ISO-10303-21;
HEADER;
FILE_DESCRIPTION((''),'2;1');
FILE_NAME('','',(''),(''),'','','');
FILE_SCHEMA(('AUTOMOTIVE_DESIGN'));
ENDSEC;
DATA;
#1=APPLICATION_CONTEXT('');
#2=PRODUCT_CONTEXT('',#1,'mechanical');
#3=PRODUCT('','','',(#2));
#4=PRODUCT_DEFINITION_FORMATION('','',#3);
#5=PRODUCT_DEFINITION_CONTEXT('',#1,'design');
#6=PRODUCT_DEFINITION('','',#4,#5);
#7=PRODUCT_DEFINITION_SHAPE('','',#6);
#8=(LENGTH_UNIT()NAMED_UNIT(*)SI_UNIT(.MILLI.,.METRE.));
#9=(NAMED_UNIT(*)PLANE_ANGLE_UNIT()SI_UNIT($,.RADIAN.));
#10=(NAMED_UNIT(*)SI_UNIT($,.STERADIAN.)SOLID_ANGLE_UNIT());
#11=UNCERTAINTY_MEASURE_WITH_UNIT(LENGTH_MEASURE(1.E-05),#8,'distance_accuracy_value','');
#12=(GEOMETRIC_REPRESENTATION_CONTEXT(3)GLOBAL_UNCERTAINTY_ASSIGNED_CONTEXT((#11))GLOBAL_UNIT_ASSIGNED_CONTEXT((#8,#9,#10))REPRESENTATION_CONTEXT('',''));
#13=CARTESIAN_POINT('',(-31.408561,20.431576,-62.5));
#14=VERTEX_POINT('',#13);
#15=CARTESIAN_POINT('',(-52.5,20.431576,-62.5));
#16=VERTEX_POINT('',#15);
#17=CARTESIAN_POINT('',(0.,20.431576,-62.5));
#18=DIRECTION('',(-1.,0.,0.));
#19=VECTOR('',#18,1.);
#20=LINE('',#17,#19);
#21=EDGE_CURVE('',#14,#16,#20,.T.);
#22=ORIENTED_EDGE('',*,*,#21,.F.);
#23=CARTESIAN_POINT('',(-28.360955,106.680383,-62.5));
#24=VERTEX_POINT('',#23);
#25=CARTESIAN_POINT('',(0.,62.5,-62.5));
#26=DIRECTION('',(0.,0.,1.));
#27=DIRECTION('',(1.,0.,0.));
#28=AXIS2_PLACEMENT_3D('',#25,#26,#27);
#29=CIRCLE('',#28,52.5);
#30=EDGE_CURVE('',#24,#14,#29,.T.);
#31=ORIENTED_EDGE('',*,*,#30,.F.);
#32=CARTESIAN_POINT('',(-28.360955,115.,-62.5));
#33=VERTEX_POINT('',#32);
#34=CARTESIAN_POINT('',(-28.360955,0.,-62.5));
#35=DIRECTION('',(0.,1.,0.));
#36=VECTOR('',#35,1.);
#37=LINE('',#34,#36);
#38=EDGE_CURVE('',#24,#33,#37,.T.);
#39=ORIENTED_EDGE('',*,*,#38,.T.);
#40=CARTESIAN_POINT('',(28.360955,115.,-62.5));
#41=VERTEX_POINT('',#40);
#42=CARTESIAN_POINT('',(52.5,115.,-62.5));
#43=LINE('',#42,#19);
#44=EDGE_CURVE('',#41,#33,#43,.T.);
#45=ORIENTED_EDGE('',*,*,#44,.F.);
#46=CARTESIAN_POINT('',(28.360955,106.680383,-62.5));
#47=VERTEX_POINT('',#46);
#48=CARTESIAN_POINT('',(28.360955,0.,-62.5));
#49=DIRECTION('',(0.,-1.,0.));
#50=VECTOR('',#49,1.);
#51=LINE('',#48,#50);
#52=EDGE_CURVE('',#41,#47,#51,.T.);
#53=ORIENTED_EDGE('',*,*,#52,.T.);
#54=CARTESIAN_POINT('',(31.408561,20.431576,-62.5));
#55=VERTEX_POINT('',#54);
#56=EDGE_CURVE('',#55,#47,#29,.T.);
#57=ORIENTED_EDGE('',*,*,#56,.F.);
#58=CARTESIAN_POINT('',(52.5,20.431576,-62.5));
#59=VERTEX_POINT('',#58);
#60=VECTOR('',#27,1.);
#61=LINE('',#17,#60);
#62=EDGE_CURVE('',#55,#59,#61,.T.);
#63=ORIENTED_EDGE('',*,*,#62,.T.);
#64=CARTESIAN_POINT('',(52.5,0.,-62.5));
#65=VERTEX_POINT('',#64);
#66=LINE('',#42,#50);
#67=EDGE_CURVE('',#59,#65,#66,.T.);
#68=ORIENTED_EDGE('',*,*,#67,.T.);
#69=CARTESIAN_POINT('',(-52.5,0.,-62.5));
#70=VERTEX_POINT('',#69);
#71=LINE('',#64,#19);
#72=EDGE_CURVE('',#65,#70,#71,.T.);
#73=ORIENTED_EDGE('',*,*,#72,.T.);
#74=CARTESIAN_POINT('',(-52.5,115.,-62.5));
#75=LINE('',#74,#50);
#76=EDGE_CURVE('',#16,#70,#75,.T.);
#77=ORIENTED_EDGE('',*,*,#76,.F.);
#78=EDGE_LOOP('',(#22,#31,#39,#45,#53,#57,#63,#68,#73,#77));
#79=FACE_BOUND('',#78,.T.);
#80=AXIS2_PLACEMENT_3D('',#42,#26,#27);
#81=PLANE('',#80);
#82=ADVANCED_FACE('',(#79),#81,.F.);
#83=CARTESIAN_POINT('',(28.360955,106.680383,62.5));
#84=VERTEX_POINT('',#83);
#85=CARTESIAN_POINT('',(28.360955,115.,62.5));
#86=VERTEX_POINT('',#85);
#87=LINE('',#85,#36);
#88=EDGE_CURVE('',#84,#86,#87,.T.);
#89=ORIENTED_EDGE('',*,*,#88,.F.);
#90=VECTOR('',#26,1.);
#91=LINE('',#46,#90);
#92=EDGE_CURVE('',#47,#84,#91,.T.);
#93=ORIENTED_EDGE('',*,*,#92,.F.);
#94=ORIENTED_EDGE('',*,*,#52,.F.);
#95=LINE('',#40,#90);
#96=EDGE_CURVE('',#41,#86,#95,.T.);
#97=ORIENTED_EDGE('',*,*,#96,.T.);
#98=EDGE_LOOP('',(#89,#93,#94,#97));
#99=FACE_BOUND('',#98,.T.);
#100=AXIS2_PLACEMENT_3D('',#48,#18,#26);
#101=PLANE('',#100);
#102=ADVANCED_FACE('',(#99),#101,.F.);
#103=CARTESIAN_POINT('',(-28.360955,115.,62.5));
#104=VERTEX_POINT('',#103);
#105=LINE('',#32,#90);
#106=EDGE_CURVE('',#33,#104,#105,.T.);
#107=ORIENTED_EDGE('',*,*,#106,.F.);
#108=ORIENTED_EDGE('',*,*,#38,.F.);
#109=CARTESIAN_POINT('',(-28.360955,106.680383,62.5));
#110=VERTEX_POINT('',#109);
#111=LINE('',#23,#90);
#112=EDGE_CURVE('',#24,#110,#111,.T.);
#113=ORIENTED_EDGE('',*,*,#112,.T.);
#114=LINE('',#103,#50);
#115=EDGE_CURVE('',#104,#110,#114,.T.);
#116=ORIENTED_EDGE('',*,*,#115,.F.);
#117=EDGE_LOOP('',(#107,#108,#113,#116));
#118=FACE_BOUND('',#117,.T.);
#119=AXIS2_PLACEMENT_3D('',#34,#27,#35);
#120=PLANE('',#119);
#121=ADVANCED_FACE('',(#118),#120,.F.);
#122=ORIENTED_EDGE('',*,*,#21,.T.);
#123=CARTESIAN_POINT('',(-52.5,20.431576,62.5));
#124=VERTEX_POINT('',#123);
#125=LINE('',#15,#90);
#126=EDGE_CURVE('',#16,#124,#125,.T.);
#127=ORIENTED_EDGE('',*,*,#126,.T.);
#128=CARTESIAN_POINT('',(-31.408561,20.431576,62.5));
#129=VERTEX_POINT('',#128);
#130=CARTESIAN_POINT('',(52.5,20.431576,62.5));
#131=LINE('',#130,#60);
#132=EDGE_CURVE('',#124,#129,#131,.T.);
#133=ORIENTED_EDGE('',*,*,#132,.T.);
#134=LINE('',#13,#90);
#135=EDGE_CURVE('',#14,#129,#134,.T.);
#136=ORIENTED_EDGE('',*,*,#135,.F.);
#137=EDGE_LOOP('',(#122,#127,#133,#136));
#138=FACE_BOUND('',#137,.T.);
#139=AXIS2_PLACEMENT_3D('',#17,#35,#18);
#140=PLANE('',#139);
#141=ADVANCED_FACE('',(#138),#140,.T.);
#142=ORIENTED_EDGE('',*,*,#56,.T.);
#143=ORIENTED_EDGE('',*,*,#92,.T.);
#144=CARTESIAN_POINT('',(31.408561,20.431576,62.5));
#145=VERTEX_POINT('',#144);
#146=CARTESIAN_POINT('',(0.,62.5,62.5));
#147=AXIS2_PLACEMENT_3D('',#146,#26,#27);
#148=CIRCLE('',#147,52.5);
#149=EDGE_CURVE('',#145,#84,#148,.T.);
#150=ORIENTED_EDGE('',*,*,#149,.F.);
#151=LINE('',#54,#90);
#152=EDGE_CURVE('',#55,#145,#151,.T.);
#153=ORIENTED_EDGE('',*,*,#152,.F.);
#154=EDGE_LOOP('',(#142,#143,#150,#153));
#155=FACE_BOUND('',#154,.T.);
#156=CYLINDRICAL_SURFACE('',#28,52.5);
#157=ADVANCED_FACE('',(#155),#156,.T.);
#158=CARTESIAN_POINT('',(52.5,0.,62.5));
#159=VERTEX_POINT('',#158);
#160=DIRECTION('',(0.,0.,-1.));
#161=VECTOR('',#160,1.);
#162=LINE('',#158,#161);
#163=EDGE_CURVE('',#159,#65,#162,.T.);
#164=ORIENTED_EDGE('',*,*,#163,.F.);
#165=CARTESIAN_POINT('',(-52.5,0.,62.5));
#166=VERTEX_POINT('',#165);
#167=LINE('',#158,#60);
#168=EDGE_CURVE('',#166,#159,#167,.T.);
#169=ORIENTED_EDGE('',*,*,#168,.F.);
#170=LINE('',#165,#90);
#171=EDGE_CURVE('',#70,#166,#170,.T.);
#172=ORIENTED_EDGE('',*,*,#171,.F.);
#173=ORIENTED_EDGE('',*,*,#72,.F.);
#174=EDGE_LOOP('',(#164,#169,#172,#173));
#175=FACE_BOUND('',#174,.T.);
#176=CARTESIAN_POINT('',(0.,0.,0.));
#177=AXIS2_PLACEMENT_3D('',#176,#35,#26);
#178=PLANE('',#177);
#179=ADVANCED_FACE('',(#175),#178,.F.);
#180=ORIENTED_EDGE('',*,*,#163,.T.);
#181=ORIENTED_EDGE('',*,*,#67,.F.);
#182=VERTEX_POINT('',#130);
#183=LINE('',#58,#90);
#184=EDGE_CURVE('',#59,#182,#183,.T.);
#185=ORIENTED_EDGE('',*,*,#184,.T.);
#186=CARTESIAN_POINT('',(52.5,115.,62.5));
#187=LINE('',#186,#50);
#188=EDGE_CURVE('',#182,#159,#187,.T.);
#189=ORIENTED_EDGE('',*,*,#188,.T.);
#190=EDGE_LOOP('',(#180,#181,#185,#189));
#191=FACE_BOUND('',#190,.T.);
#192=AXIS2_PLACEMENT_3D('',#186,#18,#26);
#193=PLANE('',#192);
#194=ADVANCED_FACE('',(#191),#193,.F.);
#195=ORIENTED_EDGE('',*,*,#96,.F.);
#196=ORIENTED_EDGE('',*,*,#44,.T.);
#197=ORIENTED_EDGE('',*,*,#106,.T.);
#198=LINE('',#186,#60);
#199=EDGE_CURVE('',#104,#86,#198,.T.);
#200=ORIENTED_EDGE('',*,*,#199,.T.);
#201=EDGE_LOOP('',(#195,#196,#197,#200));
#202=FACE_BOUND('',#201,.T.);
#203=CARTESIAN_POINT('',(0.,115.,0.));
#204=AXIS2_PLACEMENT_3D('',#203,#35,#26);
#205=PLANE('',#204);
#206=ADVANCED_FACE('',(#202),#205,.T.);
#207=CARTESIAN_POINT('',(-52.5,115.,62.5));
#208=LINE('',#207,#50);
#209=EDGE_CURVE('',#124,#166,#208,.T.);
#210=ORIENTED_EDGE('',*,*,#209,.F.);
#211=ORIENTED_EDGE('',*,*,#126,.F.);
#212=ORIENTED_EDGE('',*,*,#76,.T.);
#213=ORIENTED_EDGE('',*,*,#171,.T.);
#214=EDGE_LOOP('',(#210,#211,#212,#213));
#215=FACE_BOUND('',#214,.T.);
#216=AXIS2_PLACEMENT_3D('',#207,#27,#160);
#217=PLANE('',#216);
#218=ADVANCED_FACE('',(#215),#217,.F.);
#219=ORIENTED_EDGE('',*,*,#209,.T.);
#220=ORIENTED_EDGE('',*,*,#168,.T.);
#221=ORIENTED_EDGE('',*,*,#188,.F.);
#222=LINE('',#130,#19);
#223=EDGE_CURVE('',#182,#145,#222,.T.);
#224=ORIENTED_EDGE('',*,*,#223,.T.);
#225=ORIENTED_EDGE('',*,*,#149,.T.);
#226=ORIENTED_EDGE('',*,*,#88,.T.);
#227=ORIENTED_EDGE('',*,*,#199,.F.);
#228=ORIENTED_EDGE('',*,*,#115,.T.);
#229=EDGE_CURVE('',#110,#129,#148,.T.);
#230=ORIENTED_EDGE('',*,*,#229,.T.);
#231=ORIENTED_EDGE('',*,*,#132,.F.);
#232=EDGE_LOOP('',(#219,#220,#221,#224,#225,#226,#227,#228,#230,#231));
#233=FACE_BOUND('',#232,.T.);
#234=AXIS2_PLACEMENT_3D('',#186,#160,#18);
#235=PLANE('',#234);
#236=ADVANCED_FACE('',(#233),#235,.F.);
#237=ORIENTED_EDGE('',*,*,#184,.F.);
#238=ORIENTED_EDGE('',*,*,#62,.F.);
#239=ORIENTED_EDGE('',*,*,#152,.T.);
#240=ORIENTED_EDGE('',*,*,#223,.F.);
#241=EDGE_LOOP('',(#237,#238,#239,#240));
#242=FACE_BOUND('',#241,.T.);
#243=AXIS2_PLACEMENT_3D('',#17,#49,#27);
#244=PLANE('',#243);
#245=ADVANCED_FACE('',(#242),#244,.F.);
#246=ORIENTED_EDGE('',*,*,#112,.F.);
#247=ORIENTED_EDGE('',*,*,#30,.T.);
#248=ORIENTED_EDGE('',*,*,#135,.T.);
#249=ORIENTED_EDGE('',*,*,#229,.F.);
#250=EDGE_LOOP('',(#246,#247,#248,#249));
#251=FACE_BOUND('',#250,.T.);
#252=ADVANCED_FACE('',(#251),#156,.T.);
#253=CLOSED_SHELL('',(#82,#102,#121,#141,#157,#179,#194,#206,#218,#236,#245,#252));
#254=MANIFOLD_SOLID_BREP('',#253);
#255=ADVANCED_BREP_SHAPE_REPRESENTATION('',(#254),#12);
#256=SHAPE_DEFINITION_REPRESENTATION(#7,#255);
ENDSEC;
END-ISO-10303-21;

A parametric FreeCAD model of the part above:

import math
import FreeCAD as App
import Part
import Sketcher
Q = App.Units.Quantity


def add_polygon(sketch, points):
    """Adds a closed chain of lines whose ends are joined by coincident constraints."""
    first, n = sketch.GeometryCount, len(points)
    for a, b in zip(points, points[1:] + points[:1]):
        sketch.addGeometry(Part.LineSegment(App.Vector(*a, 0), App.Vector(*b, 0)), False)
    for i in range(n):
        sketch.addConstraint(Sketcher.Constraint("Coincident", first + i, 2, first + (i + 1) % n, 1))

doc = App.newDocument("Part")
params = doc.addObject("Spreadsheet::Sheet", "Params")
for row, (alias, value) in enumerate([
    ("sketch1_width", "105 mm"),
    ("sketch1_height", "125 mm"),
    ("pad1_length", "115 mm"),
    ("sketch2_radius", "52.5 mm"),
    ("sketch2_height", "52.5 mm"),
], start=1):
    params.set(f"A{row}", alias)
    params.set(f"B{row}", "=" + value)
    params.setAlias(f"B{row}", alias)

body = doc.addObject("PartDesign::Body", "Body")

sketch1 = body.newObject("Sketcher::SketchObject", "Sketch")
sketch1.AttachmentSupport = (doc.getObject("XZ_Plane"), [""])
sketch1.MapMode = "FlatFace"
add_polygon(sketch1, [(-52, -62), (-52, 62), (52, 62), (52, -62)])
sketch1.addConstraint([
    Sketcher.Constraint("Vertical", 0),
    Sketcher.Constraint("Horizontal", 1),
    Sketcher.Constraint("Vertical", 2),
    Sketcher.Constraint("Horizontal", 3),
    Sketcher.Constraint("Symmetric", 0, 2, 2, 2, -1, 1),
    Sketcher.Constraint("DistanceX", 1, 1, 1, 2, Q("105 mm")),
    Sketcher.Constraint("DistanceY", 0, 1, 0, 2, Q("125 mm")),
])
sketch1.setExpression("Constraints[9]", "Params.sketch1_width")
sketch1.setExpression("Constraints[10]", "Params.sketch1_height")
pad1 = body.newObject("PartDesign::Pad", "Pad")
pad1.Profile = sketch1
pad1.setExpression("Length", "Params.pad1_length")
pad1.Reversed = True

sketch2 = body.newObject("Sketcher::SketchObject", "Sketch001")
sketch2.AttachmentSupport = (doc.getObject("XY_Plane"), [""])
sketch2.MapMode = "FlatFace"
sketch2.AttachmentOffset = App.Placement(App.Vector(0, 0, 62.5), App.Rotation())
sketch2.addGeometry([
    Part.ArcOfCircle(Part.Circle(App.Vector(0, 62, 0), App.Vector(0, 0, 1), 52), math.radians(123), math.radians(180)),
    Part.LineSegment(App.Vector(-28, 107, 0), App.Vector(-28, 115, 0)),
    Part.LineSegment(App.Vector(-28, 115, 0), App.Vector(-52, 115, 0)),
    Part.LineSegment(App.Vector(-52, 115, 0), App.Vector(-52, 62, 0)),
    Part.ArcOfCircle(Part.Circle(App.Vector(0, 62, 0), App.Vector(0, 0, 1), 52), math.radians(180), math.radians(233)),
    Part.LineSegment(App.Vector(-52, 62, 0), App.Vector(-52, 20, 0)),
    Part.LineSegment(App.Vector(-52, 20, 0), App.Vector(-31, 20, 0)),
    Part.LineSegment(App.Vector(52, 20, 0), App.Vector(52, 62, 0)),
    Part.ArcOfCircle(Part.Circle(App.Vector(0, 63, 0), App.Vector(0, 0, 1), 53), math.radians(-53), math.radians(0)),
    Part.LineSegment(App.Vector(31, 20, 0), App.Vector(52, 20, 0)),
    Part.LineSegment(App.Vector(52, 115, 0), App.Vector(28, 115, 0)),
    Part.LineSegment(App.Vector(28, 115, 0), App.Vector(28, 107, 0)),
    Part.ArcOfCircle(Part.Circle(App.Vector(0, 62, 0), App.Vector(0, 0, 1), 52), math.radians(0), math.radians(57)),
    Part.LineSegment(App.Vector(52, 62, 0), App.Vector(52, 115, 0)),
], False)
sketch2.addConstraint([
    Sketcher.Constraint("Coincident", 0, 1, 1, 1),
    Sketcher.Constraint("Coincident", 1, 2, 2, 1),
    Sketcher.Constraint("Coincident", 2, 2, 3, 1),
    Sketcher.Constraint("Tangent", 3, 2, 0, 2),
    Sketcher.Constraint("Tangent", 4, 1, 5, 1),
    Sketcher.Constraint("Coincident", 5, 2, 6, 1),
    Sketcher.Constraint("Coincident", 6, 2, 4, 2),
    Sketcher.Constraint("Tangent", 7, 2, 8, 2),
    Sketcher.Constraint("Coincident", 8, 1, 9, 1),
    Sketcher.Constraint("Coincident", 9, 2, 7, 1),
    Sketcher.Constraint("Coincident", 10, 2, 11, 1),
    Sketcher.Constraint("Coincident", 11, 2, 12, 2),
    Sketcher.Constraint("Tangent", 12, 1, 13, 1),
    Sketcher.Constraint("Coincident", 13, 2, 10, 1),
    Sketcher.Constraint("Vertical", 1),
    Sketcher.Constraint("Horizontal", 2),
    Sketcher.Constraint("Vertical", 3),
    Sketcher.Constraint("Vertical", 5),
    Sketcher.Constraint("Horizontal", 6),
    Sketcher.Constraint("Vertical", 7),
    Sketcher.Constraint("Horizontal", 9),
    Sketcher.Constraint("Horizontal", 10),
    Sketcher.Constraint("Vertical", 11),
    Sketcher.Constraint("Vertical", 13),
    Sketcher.Constraint("Coincident", 4, 3, 0, 3),
    Sketcher.Constraint("Coincident", 8, 3, 0, 3),
    Sketcher.Constraint("Coincident", 12, 3, 0, 3),
    Sketcher.Constraint("Equal", 0, 4),
    Sketcher.Constraint("Equal", 4, 8),
    Sketcher.Constraint("Equal", 8, 12),
    Sketcher.Constraint("Symmetric", 6, 2, 8, 1, -2),
    Sketcher.Constraint("Symmetric", 1, 2, 10, 2, -2),
    Sketcher.Constraint("Radius", 0, Q("52.5 mm")),
    Sketcher.Constraint("DistanceY", 3, 2, 3, 1, Q("52.5 mm")),
    Sketcher.Constraint("DistanceY", -1, 1, 1, 2, Q("115 mm")),
    Sketcher.Constraint("DistanceX", 6, 1, 6, 2, Q("21.091439 mm")),
    Sketcher.Constraint("DistanceX", 2, 2, 2, 1, Q("24.139045 mm")),
])
sketch2.setExpression("Constraints[32]", "Params.sketch2_radius")
sketch2.setExpression("Constraints[33]", "Params.sketch2_height")
pocket1 = body.newObject("PartDesign::Pocket", "Pocket")
pocket1.Profile = sketch2
pocket1.Type = "ThroughAll"
pocket1.Midplane = True

doc.recompute()
